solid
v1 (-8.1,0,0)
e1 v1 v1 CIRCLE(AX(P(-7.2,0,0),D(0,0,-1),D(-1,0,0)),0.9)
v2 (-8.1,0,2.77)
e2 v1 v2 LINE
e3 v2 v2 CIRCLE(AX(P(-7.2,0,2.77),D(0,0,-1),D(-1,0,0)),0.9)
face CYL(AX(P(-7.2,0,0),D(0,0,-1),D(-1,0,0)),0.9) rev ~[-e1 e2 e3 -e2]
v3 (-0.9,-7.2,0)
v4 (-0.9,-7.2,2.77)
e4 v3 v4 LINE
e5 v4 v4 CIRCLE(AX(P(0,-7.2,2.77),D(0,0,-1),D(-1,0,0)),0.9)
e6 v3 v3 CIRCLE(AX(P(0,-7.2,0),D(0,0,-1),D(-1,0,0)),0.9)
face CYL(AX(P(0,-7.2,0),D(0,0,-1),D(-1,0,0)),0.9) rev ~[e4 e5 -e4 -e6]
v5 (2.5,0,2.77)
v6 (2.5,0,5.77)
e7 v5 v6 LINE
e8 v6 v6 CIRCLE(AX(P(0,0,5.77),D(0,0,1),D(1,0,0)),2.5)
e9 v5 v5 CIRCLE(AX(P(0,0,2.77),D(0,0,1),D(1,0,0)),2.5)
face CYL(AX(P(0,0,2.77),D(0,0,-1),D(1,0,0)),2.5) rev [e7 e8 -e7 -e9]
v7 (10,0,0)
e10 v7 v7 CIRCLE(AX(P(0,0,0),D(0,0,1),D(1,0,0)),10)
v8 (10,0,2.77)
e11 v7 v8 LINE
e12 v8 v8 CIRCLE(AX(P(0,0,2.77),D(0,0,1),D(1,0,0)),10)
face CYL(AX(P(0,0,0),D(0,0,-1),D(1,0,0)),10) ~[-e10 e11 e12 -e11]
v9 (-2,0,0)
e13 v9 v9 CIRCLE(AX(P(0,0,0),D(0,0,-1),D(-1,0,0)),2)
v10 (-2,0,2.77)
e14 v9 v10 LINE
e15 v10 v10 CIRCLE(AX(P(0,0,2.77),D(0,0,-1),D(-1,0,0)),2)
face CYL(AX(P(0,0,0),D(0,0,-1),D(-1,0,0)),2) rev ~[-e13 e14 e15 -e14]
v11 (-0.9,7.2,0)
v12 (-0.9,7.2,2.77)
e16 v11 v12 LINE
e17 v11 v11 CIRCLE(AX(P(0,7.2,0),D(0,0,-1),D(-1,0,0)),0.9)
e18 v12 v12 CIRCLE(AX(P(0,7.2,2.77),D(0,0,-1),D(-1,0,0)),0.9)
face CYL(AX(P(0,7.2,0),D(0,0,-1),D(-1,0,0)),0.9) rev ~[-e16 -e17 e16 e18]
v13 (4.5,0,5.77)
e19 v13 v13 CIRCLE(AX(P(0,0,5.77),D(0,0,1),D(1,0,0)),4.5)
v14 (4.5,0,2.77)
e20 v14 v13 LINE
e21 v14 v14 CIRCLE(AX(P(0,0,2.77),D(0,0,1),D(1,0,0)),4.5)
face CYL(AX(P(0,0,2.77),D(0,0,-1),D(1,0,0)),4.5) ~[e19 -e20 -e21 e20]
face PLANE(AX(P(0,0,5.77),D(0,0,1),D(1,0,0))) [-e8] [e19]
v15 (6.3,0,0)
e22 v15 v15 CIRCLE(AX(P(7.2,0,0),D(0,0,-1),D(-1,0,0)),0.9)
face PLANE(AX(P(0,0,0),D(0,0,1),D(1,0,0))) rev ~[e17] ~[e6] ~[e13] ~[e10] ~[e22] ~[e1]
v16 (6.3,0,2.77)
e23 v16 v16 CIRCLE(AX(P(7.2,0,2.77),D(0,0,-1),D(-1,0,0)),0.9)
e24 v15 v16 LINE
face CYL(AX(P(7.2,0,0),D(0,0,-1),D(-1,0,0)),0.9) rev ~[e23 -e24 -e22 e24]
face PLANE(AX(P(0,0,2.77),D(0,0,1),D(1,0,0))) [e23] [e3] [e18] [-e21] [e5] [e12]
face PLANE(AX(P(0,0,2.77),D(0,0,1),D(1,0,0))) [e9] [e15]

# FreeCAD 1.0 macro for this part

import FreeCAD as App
import Part
import Sketcher
from FreeCAD import Vector

doc = App.newDocument("Part")
body = doc.addObject("PartDesign::Body", "Body")

# Sketch on XY plane
sketch1 = doc.addObject("Sketcher::SketchObject", "Sketch")
body.addObject(sketch1)
sketch1.AttachmentSupport = (doc.XY_Plane, [""])
sketch1.MapMode = "FlatFace"
sketch1.addGeometry(Part.Circle(Vector(0, 0, 0), Vector(0, 0, 1), 10), False)
sketch1.addConstraint([
    Sketcher.Constraint("Coincident", 0, 3, -1, 1),
    Sketcher.Constraint("Diameter", 0, 20.0),
])
pad1 = doc.addObject("PartDesign::Pad", "Pad")
body.addObject(pad1)
pad1.Profile = sketch1
pad1.Length = 2.77

# Sketch on XY plane
sketch2 = doc.addObject("Sketcher::SketchObject", "Sketch001")
body.addObject(sketch2)
sketch2.AttachmentSupport = (doc.XY_Plane, [""])
sketch2.MapMode = "FlatFace"
sketch2.AttachmentOffset = App.Placement(Vector(0, 0, 2.77), App.Rotation())
sketch2.addGeometry([
    Part.Circle(Vector(0, 0, 0), Vector(0, 0, 1), 4.5),
    Part.Circle(Vector(0, 0, 0), Vector(0, 0, 1), 2.5),
], False)
sketch2.addConstraint([
    Sketcher.Constraint("Coincident", 0, 3, -1, 1),
    Sketcher.Constraint("Coincident", 1, 3, -1, 1),
    Sketcher.Constraint("Diameter", 0, 9.0),
    Sketcher.Constraint("Diameter", 1, 5.0),
])
pad2 = doc.addObject("PartDesign::Pad", "Pad001")
body.addObject(pad2)
pad2.Profile = sketch2
pad2.Length = 3

# Sketch on XY plane
sketch3 = doc.addObject("Sketcher::SketchObject", "Sketch002")
body.addObject(sketch3)
sketch3.AttachmentSupport = (doc.XY_Plane, [""])
sketch3.MapMode = "FlatFace"
sketch3.addGeometry([
    Part.Circle(Vector(-7.2, 0, 0), Vector(0, 0, 1), 0.9),
    Part.Circle(Vector(0, 7.2, 0), Vector(0, 0, 1), 0.9),
    Part.Circle(Vector(7.2, 0, 0), Vector(0, 0, 1), 0.9),
    Part.Circle(Vector(0, -7.2, 0), Vector(0, 0, 1), 0.9),
], False)
sketch3.addConstraint([
    Sketcher.Constraint("Equal", 0, 1),
    Sketcher.Constraint("Equal", 1, 2),
    Sketcher.Constraint("Equal", 2, 3),
    Sketcher.Constraint("Symmetric", 0, 3, 2, 3, -1, 1),
    Sketcher.Constraint("Symmetric", 1, 3, 3, 3, -1, 1),
    Sketcher.Constraint("PointOnObject", 0, 3, -1),
    Sketcher.Constraint("PointOnObject", 1, 3, -2),
    Sketcher.Constraint("Diameter", 0, 1.8),
    Sketcher.Constraint("DistanceX", 0, 3, -1, 1, 7.2),
    Sketcher.Constraint("DistanceY", -1, 1, 1, 3, 7.2),
])
pocket1 = doc.addObject("PartDesign::Pocket", "Pocket")
body.addObject(pocket1)
pocket1.Profile = sketch3
pocket1.Length = 3
pocket1.Reversed = True

# Sketch on XY plane
sketch4 = doc.addObject("Sketcher::SketchObject", "Sketch003")
body.addObject(sketch4)
sketch4.AttachmentSupport = (doc.XY_Plane, [""])
sketch4.MapMode = "FlatFace"
sketch4.addGeometry(Part.Circle(Vector(0, 0, 0), Vector(0, 0, 1), 2), False)
sketch4.addConstraint([
    Sketcher.Constraint("Coincident", 0, 3, -1, 1),
    Sketcher.Constraint("Diameter", 0, 4.0),
])
pocket2 = doc.addObject("PartDesign::Pocket", "Pocket001")
body.addObject(pocket2)
pocket2.Profile = sketch4
pocket2.Length = 5
pocket2.Reversed = True

doc.recompute()
